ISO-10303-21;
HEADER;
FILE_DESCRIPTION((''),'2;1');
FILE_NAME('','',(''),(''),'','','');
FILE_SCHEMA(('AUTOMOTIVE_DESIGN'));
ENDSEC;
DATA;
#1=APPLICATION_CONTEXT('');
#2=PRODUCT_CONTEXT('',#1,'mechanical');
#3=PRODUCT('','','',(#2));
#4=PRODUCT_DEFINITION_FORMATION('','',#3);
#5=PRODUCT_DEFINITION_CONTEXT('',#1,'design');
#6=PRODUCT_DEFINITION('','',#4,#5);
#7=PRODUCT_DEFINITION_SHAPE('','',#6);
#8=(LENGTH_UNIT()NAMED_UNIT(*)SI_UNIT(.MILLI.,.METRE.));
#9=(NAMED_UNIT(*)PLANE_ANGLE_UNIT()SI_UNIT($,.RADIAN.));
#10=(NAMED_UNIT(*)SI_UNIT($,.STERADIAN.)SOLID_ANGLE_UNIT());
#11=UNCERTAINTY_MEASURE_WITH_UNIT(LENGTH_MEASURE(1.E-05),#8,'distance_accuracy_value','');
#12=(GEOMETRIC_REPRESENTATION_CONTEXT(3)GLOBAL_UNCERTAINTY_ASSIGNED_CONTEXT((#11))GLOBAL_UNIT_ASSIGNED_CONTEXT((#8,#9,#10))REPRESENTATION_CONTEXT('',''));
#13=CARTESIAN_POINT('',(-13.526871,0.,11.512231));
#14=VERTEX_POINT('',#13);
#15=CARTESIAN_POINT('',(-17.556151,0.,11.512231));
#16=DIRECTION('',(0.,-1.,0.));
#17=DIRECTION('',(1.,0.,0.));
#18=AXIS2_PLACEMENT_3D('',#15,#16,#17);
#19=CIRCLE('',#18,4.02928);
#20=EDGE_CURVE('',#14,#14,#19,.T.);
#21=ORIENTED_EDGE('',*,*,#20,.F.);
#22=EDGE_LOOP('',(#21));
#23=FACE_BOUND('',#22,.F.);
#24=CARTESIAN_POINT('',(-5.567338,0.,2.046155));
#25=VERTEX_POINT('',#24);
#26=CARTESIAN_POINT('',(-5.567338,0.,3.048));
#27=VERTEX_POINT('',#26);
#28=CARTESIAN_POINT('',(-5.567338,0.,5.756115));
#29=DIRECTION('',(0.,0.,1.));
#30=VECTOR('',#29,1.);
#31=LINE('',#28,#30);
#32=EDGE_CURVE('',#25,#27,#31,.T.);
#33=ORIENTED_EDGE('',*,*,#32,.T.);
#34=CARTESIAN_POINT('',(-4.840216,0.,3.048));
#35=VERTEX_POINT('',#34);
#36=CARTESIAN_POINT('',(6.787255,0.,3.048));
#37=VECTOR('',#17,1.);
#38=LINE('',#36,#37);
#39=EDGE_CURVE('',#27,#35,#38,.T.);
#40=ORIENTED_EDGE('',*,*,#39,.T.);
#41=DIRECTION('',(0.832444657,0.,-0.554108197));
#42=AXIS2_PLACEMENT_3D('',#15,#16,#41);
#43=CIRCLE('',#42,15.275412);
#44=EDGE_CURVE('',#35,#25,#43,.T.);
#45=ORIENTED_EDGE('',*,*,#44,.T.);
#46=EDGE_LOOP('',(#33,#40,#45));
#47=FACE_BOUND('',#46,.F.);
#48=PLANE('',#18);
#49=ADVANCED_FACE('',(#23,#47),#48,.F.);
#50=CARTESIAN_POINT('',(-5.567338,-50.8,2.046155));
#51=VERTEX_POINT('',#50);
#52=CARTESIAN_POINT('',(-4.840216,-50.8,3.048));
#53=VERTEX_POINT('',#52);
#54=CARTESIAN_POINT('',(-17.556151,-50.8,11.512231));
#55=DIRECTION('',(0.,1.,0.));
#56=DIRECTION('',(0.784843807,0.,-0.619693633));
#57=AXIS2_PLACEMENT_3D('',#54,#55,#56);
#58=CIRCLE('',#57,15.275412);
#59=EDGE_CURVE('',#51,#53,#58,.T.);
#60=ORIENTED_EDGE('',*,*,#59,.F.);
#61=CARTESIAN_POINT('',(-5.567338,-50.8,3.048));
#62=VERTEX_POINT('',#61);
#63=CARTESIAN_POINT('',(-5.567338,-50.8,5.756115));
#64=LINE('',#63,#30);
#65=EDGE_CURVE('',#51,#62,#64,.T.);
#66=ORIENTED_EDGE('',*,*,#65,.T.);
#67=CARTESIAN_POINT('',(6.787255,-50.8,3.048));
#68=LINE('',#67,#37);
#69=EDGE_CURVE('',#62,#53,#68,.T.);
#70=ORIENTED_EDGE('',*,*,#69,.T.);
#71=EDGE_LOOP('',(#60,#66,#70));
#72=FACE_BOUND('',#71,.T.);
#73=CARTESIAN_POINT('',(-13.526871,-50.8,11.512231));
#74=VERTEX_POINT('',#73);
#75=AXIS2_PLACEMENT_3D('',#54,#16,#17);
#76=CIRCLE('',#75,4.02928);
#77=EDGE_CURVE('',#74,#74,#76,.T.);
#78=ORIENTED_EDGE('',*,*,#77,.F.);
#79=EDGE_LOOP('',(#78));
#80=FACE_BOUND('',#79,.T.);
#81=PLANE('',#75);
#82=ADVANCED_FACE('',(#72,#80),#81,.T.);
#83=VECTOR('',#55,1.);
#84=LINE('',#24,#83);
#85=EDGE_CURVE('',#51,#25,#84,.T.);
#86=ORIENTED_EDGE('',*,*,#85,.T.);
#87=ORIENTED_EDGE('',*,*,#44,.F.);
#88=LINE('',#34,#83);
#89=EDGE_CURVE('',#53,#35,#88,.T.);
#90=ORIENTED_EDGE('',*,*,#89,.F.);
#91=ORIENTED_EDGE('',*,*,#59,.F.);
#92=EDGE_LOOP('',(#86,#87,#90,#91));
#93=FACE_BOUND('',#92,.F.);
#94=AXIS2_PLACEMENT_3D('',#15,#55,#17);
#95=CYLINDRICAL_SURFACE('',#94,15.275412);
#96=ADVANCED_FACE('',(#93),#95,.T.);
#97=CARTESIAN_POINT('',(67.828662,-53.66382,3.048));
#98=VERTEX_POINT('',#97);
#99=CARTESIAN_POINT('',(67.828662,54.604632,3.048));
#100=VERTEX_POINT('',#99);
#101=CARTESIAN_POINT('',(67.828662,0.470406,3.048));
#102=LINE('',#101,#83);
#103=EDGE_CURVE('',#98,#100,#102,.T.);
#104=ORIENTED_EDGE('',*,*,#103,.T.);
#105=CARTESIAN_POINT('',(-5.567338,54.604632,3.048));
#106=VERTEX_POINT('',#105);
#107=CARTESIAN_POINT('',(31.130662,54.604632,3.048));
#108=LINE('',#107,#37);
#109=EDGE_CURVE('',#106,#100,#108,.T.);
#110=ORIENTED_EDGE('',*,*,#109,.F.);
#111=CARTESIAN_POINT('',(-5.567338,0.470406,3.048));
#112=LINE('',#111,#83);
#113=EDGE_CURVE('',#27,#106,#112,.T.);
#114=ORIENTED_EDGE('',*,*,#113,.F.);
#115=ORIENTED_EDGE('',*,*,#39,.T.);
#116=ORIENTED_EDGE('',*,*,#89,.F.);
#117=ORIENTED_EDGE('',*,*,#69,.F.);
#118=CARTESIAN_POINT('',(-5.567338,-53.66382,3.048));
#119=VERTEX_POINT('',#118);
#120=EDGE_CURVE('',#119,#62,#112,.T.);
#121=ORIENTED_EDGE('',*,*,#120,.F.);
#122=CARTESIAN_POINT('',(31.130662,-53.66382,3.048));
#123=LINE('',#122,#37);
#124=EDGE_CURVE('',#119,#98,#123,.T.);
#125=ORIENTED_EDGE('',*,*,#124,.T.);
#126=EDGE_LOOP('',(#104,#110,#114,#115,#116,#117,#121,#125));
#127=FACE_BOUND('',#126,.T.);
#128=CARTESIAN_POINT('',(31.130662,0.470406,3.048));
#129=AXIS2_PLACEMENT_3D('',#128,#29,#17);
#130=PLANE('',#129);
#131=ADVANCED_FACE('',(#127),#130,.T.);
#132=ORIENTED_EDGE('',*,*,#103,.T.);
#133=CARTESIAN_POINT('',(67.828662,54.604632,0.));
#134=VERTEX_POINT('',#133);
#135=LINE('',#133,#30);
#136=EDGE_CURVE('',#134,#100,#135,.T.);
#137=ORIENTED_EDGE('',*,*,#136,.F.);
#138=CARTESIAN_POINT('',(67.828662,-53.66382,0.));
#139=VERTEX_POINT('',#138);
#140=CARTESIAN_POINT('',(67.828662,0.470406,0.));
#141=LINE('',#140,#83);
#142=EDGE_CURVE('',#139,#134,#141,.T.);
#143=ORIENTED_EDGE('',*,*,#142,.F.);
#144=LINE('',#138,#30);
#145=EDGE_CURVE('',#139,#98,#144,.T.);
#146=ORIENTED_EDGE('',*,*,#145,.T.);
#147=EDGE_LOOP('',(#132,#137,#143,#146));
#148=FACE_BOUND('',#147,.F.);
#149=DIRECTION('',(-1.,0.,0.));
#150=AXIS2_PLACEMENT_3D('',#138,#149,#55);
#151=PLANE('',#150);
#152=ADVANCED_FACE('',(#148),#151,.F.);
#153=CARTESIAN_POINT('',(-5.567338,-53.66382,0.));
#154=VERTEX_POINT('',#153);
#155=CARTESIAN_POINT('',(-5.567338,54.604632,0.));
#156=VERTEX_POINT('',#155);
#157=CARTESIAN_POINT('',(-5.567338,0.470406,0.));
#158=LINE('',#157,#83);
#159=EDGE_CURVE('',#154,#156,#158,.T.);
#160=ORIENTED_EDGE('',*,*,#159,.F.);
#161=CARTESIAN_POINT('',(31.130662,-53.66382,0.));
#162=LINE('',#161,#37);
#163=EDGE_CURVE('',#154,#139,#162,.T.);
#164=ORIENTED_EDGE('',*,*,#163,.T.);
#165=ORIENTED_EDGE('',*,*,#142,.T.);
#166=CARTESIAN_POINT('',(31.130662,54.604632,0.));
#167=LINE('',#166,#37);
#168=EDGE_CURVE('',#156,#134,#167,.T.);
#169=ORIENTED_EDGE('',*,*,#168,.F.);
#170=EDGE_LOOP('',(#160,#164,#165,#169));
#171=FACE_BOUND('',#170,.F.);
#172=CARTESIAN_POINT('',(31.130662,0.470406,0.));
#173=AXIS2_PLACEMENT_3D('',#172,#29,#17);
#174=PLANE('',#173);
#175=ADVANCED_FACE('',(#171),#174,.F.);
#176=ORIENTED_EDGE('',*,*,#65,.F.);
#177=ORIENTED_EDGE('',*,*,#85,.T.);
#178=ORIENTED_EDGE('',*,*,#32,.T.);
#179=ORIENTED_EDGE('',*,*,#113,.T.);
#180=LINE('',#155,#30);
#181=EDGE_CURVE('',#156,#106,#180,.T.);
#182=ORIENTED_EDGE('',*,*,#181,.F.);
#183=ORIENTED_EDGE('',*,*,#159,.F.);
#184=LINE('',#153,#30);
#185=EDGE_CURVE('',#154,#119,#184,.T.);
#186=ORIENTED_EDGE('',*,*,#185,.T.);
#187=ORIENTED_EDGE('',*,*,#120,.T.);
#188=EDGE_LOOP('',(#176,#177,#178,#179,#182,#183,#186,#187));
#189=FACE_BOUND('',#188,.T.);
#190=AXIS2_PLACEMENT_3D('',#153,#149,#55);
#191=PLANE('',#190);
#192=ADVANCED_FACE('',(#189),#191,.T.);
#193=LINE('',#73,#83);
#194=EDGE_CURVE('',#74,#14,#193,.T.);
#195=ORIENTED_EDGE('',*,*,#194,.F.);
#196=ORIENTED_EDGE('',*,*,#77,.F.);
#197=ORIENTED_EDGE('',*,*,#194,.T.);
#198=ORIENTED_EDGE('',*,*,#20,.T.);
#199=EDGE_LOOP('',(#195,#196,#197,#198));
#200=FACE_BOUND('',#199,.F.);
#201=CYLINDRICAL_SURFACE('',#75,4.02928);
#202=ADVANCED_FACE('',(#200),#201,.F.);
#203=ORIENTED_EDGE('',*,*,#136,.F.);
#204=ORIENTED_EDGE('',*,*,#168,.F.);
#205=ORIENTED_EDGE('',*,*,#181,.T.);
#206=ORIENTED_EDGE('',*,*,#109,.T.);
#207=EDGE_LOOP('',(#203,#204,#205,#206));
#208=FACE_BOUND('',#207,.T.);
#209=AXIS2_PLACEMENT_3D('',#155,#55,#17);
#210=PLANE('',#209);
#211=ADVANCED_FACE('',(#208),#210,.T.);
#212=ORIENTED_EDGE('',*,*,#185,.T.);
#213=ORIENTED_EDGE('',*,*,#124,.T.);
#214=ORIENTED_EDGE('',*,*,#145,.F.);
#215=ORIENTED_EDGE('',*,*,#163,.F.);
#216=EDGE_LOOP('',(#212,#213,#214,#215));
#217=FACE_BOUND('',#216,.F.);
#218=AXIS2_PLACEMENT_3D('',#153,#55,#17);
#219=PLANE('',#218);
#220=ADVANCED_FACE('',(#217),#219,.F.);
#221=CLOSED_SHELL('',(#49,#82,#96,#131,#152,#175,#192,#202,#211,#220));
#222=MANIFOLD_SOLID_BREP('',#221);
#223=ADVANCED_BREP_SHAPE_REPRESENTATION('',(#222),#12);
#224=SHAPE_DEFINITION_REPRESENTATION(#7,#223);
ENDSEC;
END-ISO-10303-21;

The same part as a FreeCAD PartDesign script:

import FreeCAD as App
import Part
import Sketcher
from FreeCAD import Vector
Q = App.Units.Quantity

doc = App.newDocument("Part")
body = doc.addObject("PartDesign::Body", "Body")

# Sketch on XY plane
sketch1 = body.newObject("Sketcher::SketchObject", "Sketch")
sketch1.AttachmentSupport = (doc.getObject("XY_Plane"), [""])
sketch1.MapMode = "FlatFace"
sketch1.addGeometry(Part.LineSegment(Vector(-5.567338, 54.604632, 0), Vector(-5.567338, -53.66382, 0)), False)
sketch1.addGeometry(Part.LineSegment(Vector(-5.567338, -53.66382, 0), Vector(67.828662, -53.66382, 0)), False)
sketch1.addGeometry(Part.LineSegment(Vector(67.828662, -53.66382, 0), Vector(67.828662, 54.604632, 0)), False)
sketch1.addGeometry(Part.LineSegment(Vector(67.828662, 54.604632, 0), Vector(-5.567338, 54.604632, 0)), False)
sketch1.addConstraint(Sketcher.Constraint("Coincident", 0, 2, 1, 1))
sketch1.addConstraint(Sketcher.Constraint("Coincident", 1, 2, 2, 1))
sketch1.addConstraint(Sketcher.Constraint("Coincident", 2, 2, 3, 1))
sketch1.addConstraint(Sketcher.Constraint("Coincident", 3, 2, 0, 1))
sketch1.addConstraint(Sketcher.Constraint("Vertical", 0))
sketch1.addConstraint(Sketcher.Constraint("Horizontal", 1))
sketch1.addConstraint(Sketcher.Constraint("Vertical", 2))
sketch1.addConstraint(Sketcher.Constraint("Horizontal", 3))
sketch1.addConstraint(Sketcher.Constraint("DistanceX", 1, 1, 1, 2, 73.396001))
sketch1.addConstraint(Sketcher.Constraint("DistanceY", 0, 2, 0, 1, 108.268451))
sketch1.addConstraint(Sketcher.Constraint("DistanceX", 0, 2, -1, 1, 5.567338))
sketch1.addConstraint(Sketcher.Constraint("DistanceY", 0, 2, -1, 1, 53.66382))
pad1 = body.newObject("PartDesign::Pad", "Pad")
pad1.Profile = sketch1
pad1.Length = Q("0.12 in")

# Sketch on XZ plane
sketch2 = body.newObject("Sketcher::SketchObject", "Sketch001")
sketch2.AttachmentSupport = (doc.getObject("XZ_Plane"), [""])
sketch2.MapMode = "FlatFace"
sketch2.addGeometry(Part.Circle(Vector(-17.556151, 11.512231, 0), Vector(0, 0, 1), 15.275412), False)
sketch2.addConstraint(Sketcher.Constraint("Diameter", 0, 30.550824))
sketch2.addConstraint(Sketcher.Constraint("DistanceX", 0, 3, -1, 1, 17.556151))
sketch2.addConstraint(Sketcher.Constraint("DistanceY", -1, 1, 0, 3, 11.512231))
pad2 = body.newObject("PartDesign::Pad", "Pad001")
pad2.Profile = sketch2
pad2.Length = Q("2 in")

# Sketch on XZ plane
sketch3 = body.newObject("Sketcher::SketchObject", "Sketch002")
sketch3.AttachmentSupport = (doc.getObject("XZ_Plane"), [""])
sketch3.MapMode = "FlatFace"
sketch3.AttachmentOffset = App.Placement(Vector(0, 0, 2 * 25.4), App.Rotation())
sketch3.addGeometry(Part.Circle(Vector(-17.556151, 11.512231, 0), Vector(0, 0, 1), 4.02928), False)
sketch3.addConstraint(Sketcher.Constraint("Diameter", 0, 8.05856))
sketch3.addConstraint(Sketcher.Constraint("DistanceX", 0, 3, -1, 1, 17.556151))
sketch3.addConstraint(Sketcher.Constraint("DistanceY", -1, 1, 0, 3, 11.512231))
pocket1 = body.newObject("PartDesign::Pocket", "Pocket")
pocket1.Profile = sketch3
pocket1.Length = Q("2 in")

doc.recompute()
